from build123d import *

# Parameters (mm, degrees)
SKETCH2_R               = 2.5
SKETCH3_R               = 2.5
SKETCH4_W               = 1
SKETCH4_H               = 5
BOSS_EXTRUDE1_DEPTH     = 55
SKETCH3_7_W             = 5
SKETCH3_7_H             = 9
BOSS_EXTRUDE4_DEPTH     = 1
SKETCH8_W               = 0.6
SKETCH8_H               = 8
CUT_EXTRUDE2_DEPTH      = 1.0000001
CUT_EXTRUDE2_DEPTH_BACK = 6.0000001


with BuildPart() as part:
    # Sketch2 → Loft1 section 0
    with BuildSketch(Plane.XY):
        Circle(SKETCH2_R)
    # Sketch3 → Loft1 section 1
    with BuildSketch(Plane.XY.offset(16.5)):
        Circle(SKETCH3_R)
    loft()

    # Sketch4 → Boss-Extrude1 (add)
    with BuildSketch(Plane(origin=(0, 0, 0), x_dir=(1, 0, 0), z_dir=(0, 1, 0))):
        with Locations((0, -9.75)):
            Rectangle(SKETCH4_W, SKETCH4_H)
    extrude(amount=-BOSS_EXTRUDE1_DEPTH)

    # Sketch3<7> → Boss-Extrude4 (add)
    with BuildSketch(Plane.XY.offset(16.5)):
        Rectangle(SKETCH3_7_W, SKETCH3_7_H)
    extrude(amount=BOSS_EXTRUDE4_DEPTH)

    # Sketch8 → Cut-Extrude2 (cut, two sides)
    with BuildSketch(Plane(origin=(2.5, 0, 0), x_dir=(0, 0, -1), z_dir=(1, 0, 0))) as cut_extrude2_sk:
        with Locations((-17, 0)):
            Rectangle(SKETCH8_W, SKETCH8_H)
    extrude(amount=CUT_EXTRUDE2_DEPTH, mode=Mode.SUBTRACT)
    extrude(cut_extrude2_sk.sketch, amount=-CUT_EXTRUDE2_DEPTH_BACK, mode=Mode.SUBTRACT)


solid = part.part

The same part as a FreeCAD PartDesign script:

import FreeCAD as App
import Part
import Sketcher
from FreeCAD import Vector

doc = App.newDocument("Part")
body = doc.addObject("PartDesign::Body", "Body")

# Sketch on XY plane
sketch1 = body.newObject("Sketcher::SketchObject", "Sketch")
sketch1.AttachmentSupport = (doc.getObject("XY_Plane"), [""])
sketch1.MapMode = "FlatFace"
sketch1.addGeometry(Part.Circle(Vector(0, 0, 0), Vector(0, 0, 1), 2.5), False)
sketch1.addConstraint([
    Sketcher.Constraint("Coincident", 0, 3, -1, 1),
    Sketcher.Constraint("Diameter", 0, 5.0),
])

# Sketch on XY plane
sketch2 = body.newObject("Sketcher::SketchObject", "Sketch001")
sketch2.AttachmentSupport = (doc.getObject("XY_Plane"), [""])
sketch2.MapMode = "FlatFace"
sketch2.AttachmentOffset = App.Placement(Vector(0, 0, 16.5), App.Rotation())
sketch2.addGeometry(Part.Circle(Vector(0, 0, 0), Vector(0, 0, 1), 2.5), False)
sketch2.addConstraint([
    Sketcher.Constraint("Coincident", 0, 3, -1, 1),
    Sketcher.Constraint("Diameter", 0, 5.0),
])

additiveloft = body.newObject("PartDesign::AdditiveLoft", "AdditiveLoft")
additiveloft.Profile = sketch1
additiveloft.Sections = [sketch2]

# Sketch on XZ plane
sketch3 = body.newObject("Sketcher::SketchObject", "Sketch002")
sketch3.AttachmentSupport = (doc.getObject("XZ_Plane"), [""])
sketch3.MapMode = "FlatFace"
sketch3.addGeometry([
    Part.LineSegment(Vector(-0.5, 7.2, 0), Vector(-0.5, 12.2, 0)),
    Part.LineSegment(Vector(-0.5, 12.2, 0), Vector(0.5, 12.2, 0)),
    Part.LineSegment(Vector(0.5, 12.2, 0), Vector(0.5, 7.2, 0)),
    Part.LineSegment(Vector(0.5, 7.2, 0), Vector(-0.5, 7.2, 0)),
], False)
sketch3.addConstraint([
    Sketcher.Constraint("Coincident", 0, 2, 1, 1),
    Sketcher.Constraint("Coincident", 1, 2, 2, 1),
    Sketcher.Constraint("Coincident", 2, 2, 3, 1),
    Sketcher.Constraint("Coincident", 3, 2, 0, 1),
    Sketcher.Constraint("Vertical", 0),
    Sketcher.Constraint("Horizontal", 1),
    Sketcher.Constraint("Vertical", 2),
    Sketcher.Constraint("Horizontal", 3),
    Sketcher.Constraint("DistanceX", 1, 1, 1, 2, 1.0),
    Sketcher.Constraint("DistanceY", 0, 1, 0, 2, 5.0),
    Sketcher.Constraint("DistanceX", 0, 2, -1, 1, 0.5),
    Sketcher.Constraint("DistanceY", -1, 1, 0, 2, 12.25),
])
pad1 = body.newObject("PartDesign::Pad", "Pad")
pad1.Profile = sketch3
pad1.Length = 55

# Sketch on XY plane
sketch4 = body.newObject("Sketcher::SketchObject", "Sketch003")
sketch4.AttachmentSupport = (doc.getObject("XY_Plane"), [""])
sketch4.MapMode = "FlatFace"
sketch4.AttachmentOffset = App.Placement(Vector(0, 0, 16.5), App.Rotation())
sketch4.addGeometry([
    Part.LineSegment(Vector(-2, 4, 0), Vector(-2, -4, 0)),
    Part.LineSegment(Vector(-2, -4, 0), Vector(2, -4, 0)),
    Part.LineSegment(Vector(2, -4, 0), Vector(2, 4, 0)),
    Part.LineSegment(Vector(2, 4, 0), Vector(-2, 4, 0)),
], False)
sketch4.addConstraint([
    Sketcher.Constraint("Coincident", 0, 2, 1, 1),
    Sketcher.Constraint("Coincident", 1, 2, 2, 1),
    Sketcher.Constraint("Coincident", 2, 2, 3, 1),
    Sketcher.Constraint("Coincident", 3, 2, 0, 1),
    Sketcher.Constraint("Vertical", 0),
    Sketcher.Constraint("Horizontal", 1),
    Sketcher.Constraint("Vertical", 2),
    Sketcher.Constraint("Horizontal", 3),
    Sketcher.Constraint("Symmetric", 0, 2, 2, 2, -1, 1),
    Sketcher.Constraint("DistanceX", 1, 1, 1, 2, 5.0),
    Sketcher.Constraint("DistanceY", 0, 2, 0, 1, 9.0),
])
pad2 = body.newObject("PartDesign::Pad", "Pad001")
pad2.Profile = sketch4
pad2.Length = 1

# Sketch on YZ plane
sketch5 = body.newObject("Sketcher::SketchObject", "Sketch004")
sketch5.AttachmentSupport = (doc.getObject("YZ_Plane"), [""])
sketch5.MapMode = "FlatFace"
sketch5.AttachmentOffset = App.Placement(Vector(0, 0, 2.5), App.Rotation())
sketch5.addGeometry([
    Part.LineSegment(Vector(4, 17.3, 0), Vector(-4, 17.3, 0)),
    Part.LineSegment(Vector(-4, 17.3, 0), Vector(-4, 16.7, 0)),
    Part.LineSegment(Vector(-4, 16.7, 0), Vector(4, 16.7, 0)),
    Part.LineSegment(Vector(4, 16.7, 0), Vector(4, 17.3, 0)),
], False)
sketch5.addConstraint([
    Sketcher.Constraint("Coincident", 0, 2, 1, 1),
    Sketcher.Constraint("Coincident", 1, 2, 2, 1),
    Sketcher.Constraint("Coincident", 2, 2, 3, 1),
    Sketcher.Constraint("Coincident", 3, 2, 0, 1),
    Sketcher.Constraint("Horizontal", 0),
    Sketcher.Constraint("Vertical", 1),
    Sketcher.Constraint("Horizontal", 2),
    Sketcher.Constraint("Vertical", 3),
    Sketcher.Constraint("DistanceX", 0, 2, 0, 1, 8.0),
    Sketcher.Constraint("DistanceY", 1, 2, 1, 1, 0.6),
    Sketcher.Constraint("DistanceX", 0, 2, -1, 1, 4.0),
    Sketcher.Constraint("DistanceY", -1, 1, 0, 2, 17.3),
])
pocket1 = body.newObject("PartDesign::Pocket", "Pocket")
pocket1.Profile = sketch5
pocket1.Type = "ThroughAll"
pocket1.Midplane = True

doc.recompute()
